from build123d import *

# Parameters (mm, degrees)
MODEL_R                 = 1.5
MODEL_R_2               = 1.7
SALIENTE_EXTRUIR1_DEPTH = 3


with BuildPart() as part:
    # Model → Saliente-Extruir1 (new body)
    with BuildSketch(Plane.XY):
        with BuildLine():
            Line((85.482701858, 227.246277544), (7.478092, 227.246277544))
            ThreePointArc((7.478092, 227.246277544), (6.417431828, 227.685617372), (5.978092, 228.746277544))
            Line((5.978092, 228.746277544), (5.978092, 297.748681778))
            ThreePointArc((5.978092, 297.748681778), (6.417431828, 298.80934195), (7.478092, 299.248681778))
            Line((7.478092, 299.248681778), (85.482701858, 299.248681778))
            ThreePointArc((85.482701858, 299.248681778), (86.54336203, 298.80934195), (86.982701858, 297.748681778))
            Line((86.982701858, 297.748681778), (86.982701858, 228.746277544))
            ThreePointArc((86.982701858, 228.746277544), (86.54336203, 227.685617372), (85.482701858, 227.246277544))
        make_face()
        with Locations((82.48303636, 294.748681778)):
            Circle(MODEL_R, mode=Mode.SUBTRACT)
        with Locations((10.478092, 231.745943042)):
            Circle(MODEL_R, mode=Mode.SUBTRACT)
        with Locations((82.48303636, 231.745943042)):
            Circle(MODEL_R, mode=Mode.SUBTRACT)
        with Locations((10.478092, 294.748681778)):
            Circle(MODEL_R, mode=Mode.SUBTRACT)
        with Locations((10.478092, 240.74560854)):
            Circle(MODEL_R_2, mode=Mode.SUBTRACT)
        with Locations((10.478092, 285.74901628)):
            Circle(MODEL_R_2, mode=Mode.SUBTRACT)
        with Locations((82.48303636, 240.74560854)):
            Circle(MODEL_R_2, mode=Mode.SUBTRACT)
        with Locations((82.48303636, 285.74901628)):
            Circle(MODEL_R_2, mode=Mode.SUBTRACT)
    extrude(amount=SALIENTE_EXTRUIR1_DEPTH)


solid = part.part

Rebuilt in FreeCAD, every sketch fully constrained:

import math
import FreeCAD as App
import Part
import Sketcher

doc = App.newDocument("Part")
body = doc.addObject("PartDesign::Body", "Body")

# Sketch on XY plane
sketch1 = doc.addObject("Sketcher::SketchObject", "Sketch")
body.addObject(sketch1)
sketch1.AttachmentSupport = (doc.XY_Plane, [""])
sketch1.MapMode = "FlatFace"
sketch1.addGeometry([
    Part.LineSegment(App.Vector(7.5, 227.2, 0), App.Vector(85.5, 227.2, 0)),  # 0
    Part.ArcOfCircle(Part.Circle(App.Vector(85.5, 228.7, 0), App.Vector(0, 0, 1), 1.5), math.radians(-90), math.radians(0)),  # 1
    Part.LineSegment(App.Vector(87, 228.7, 0), App.Vector(87, 297.7, 0)),  # 2
    Part.ArcOfCircle(Part.Circle(App.Vector(85.5, 297.7, 0), App.Vector(0, 0, 1), 1.5), math.radians(0), math.radians(90)),  # 3
    Part.LineSegment(App.Vector(85.5, 299.2, 0), App.Vector(7.5, 299.2, 0)),  # 4
    Part.ArcOfCircle(Part.Circle(App.Vector(7.5, 297.7, 0), App.Vector(0, 0, 1), 1.5), math.radians(90), math.radians(180)),  # 5
    Part.LineSegment(App.Vector(6, 297.7, 0), App.Vector(6, 228.7, 0)),  # 6
    Part.ArcOfCircle(Part.Circle(App.Vector(7.5, 228.7, 0), App.Vector(0, 0, 1), 1.5), math.radians(180), math.radians(270)),  # 7
    Part.Circle(App.Vector(82.5, 231.7, 0), App.Vector(0, 0, 1), 1.5),  # 8
    Part.Circle(App.Vector(82.5, 240.7, 0), App.Vector(0, 0, 1), 1.7),  # 9
    Part.Circle(App.Vector(10.5, 231.7, 0), App.Vector(0, 0, 1), 1.5),  # 10
    Part.Circle(App.Vector(10.5, 240.7, 0), App.Vector(0, 0, 1), 1.7),  # 11
    Part.Circle(App.Vector(82.5, 285.7, 0), App.Vector(0, 0, 1), 1.7),  # 12
    Part.Circle(App.Vector(82.5, 294.7, 0), App.Vector(0, 0, 1), 1.5),  # 13
    Part.Circle(App.Vector(10.5, 285.7, 0), App.Vector(0, 0, 1), 1.7),  # 14
    Part.Circle(App.Vector(10.5, 294.7, 0), App.Vector(0, 0, 1), 1.5),  # 15
], False)
sketch1.addConstraint([
    Sketcher.Constraint("Tangent", 0, 2, 1, 1),
    Sketcher.Constraint("Tangent", 1, 2, 2, 1),
    Sketcher.Constraint("Tangent", 2, 2, 3, 1),
    Sketcher.Constraint("Tangent", 3, 2, 4, 1),
    Sketcher.Constraint("Tangent", 4, 2, 5, 1),
    Sketcher.Constraint("Tangent", 5, 2, 6, 1),
    Sketcher.Constraint("Tangent", 6, 2, 7, 1),
    Sketcher.Constraint("Tangent", 7, 2, 0, 1),
    Sketcher.Constraint("Horizontal", 0),
    Sketcher.Constraint("Vertical", 2),
    Sketcher.Constraint("Horizontal", 4),
    Sketcher.Constraint("Vertical", 6),
    Sketcher.Constraint("Equal", 1, 3),
    Sketcher.Constraint("Equal", 3, 5),
    Sketcher.Constraint("Equal", 5, 7),
    Sketcher.Constraint("Equal", 7, 8),
    Sketcher.Constraint("Equal", 8, 10),
    Sketcher.Constraint("Equal", 9, 11),
    Sketcher.Constraint("Equal", 11, 12),
    Sketcher.Constraint("Equal", 10, 13),
    Sketcher.Constraint("Equal", 12, 14),
    Sketcher.Constraint("Equal", 13, 15),
    Sketcher.Constraint("Horizontal", 8, 3, 10, 3),
    Sketcher.Constraint("Horizontal", 9, 3, 11, 3),
    Sketcher.Constraint("Horizontal", 12, 3, 14, 3),
    Sketcher.Constraint("Horizontal", 13, 3, 15, 3),
    Sketcher.Constraint("Vertical", 8, 3, 9, 3),
    Sketcher.Constraint("Vertical", 10, 3, 11, 3),
    Sketcher.Constraint("Vertical", 9, 3, 12, 3),
    Sketcher.Constraint("Vertical", 12, 3, 13, 3),
    Sketcher.Constraint("Vertical", 11, 3, 14, 3),
    Sketcher.Constraint("Vertical", 14, 3, 15, 3),
    Sketcher.Constraint("Diameter", 8, 3.0),
    Sketcher.Constraint("Diameter", 9, 3.4),
    Sketcher.Constraint("DistanceX", 7, 3, 10, 3, 3.0),
    Sketcher.Constraint("DistanceY", 13, 3, 3, 3, 3.0),
    Sketcher.Constraint("DistanceX", 0, 1, 0, 2, 78.00461),
    Sketcher.Constraint("DistanceX", -1, 1, 1, 3, 85.482702),
    Sketcher.Constraint("DistanceY", 2, 1, 2, 2, 69.002404),
    Sketcher.Constraint("DistanceY", -1, 1, 3, 3, 297.748682),
    Sketcher.Constraint("DistanceY", -1, 1, 9, 3, 240.745609),
    Sketcher.Constraint("DistanceY", 8, 3, 3, 3, 66.002739),
    Sketcher.Constraint("DistanceY", 1, 3, 12, 3, 57.002739),
    Sketcher.Constraint("DistanceX", -1, 1, 8, 3, 82.483036),
])
pad1 = doc.addObject("PartDesign::Pad", "Pad")
body.addObject(pad1)
pad1.Profile = sketch1
pad1.Length = 3

doc.recompute()
